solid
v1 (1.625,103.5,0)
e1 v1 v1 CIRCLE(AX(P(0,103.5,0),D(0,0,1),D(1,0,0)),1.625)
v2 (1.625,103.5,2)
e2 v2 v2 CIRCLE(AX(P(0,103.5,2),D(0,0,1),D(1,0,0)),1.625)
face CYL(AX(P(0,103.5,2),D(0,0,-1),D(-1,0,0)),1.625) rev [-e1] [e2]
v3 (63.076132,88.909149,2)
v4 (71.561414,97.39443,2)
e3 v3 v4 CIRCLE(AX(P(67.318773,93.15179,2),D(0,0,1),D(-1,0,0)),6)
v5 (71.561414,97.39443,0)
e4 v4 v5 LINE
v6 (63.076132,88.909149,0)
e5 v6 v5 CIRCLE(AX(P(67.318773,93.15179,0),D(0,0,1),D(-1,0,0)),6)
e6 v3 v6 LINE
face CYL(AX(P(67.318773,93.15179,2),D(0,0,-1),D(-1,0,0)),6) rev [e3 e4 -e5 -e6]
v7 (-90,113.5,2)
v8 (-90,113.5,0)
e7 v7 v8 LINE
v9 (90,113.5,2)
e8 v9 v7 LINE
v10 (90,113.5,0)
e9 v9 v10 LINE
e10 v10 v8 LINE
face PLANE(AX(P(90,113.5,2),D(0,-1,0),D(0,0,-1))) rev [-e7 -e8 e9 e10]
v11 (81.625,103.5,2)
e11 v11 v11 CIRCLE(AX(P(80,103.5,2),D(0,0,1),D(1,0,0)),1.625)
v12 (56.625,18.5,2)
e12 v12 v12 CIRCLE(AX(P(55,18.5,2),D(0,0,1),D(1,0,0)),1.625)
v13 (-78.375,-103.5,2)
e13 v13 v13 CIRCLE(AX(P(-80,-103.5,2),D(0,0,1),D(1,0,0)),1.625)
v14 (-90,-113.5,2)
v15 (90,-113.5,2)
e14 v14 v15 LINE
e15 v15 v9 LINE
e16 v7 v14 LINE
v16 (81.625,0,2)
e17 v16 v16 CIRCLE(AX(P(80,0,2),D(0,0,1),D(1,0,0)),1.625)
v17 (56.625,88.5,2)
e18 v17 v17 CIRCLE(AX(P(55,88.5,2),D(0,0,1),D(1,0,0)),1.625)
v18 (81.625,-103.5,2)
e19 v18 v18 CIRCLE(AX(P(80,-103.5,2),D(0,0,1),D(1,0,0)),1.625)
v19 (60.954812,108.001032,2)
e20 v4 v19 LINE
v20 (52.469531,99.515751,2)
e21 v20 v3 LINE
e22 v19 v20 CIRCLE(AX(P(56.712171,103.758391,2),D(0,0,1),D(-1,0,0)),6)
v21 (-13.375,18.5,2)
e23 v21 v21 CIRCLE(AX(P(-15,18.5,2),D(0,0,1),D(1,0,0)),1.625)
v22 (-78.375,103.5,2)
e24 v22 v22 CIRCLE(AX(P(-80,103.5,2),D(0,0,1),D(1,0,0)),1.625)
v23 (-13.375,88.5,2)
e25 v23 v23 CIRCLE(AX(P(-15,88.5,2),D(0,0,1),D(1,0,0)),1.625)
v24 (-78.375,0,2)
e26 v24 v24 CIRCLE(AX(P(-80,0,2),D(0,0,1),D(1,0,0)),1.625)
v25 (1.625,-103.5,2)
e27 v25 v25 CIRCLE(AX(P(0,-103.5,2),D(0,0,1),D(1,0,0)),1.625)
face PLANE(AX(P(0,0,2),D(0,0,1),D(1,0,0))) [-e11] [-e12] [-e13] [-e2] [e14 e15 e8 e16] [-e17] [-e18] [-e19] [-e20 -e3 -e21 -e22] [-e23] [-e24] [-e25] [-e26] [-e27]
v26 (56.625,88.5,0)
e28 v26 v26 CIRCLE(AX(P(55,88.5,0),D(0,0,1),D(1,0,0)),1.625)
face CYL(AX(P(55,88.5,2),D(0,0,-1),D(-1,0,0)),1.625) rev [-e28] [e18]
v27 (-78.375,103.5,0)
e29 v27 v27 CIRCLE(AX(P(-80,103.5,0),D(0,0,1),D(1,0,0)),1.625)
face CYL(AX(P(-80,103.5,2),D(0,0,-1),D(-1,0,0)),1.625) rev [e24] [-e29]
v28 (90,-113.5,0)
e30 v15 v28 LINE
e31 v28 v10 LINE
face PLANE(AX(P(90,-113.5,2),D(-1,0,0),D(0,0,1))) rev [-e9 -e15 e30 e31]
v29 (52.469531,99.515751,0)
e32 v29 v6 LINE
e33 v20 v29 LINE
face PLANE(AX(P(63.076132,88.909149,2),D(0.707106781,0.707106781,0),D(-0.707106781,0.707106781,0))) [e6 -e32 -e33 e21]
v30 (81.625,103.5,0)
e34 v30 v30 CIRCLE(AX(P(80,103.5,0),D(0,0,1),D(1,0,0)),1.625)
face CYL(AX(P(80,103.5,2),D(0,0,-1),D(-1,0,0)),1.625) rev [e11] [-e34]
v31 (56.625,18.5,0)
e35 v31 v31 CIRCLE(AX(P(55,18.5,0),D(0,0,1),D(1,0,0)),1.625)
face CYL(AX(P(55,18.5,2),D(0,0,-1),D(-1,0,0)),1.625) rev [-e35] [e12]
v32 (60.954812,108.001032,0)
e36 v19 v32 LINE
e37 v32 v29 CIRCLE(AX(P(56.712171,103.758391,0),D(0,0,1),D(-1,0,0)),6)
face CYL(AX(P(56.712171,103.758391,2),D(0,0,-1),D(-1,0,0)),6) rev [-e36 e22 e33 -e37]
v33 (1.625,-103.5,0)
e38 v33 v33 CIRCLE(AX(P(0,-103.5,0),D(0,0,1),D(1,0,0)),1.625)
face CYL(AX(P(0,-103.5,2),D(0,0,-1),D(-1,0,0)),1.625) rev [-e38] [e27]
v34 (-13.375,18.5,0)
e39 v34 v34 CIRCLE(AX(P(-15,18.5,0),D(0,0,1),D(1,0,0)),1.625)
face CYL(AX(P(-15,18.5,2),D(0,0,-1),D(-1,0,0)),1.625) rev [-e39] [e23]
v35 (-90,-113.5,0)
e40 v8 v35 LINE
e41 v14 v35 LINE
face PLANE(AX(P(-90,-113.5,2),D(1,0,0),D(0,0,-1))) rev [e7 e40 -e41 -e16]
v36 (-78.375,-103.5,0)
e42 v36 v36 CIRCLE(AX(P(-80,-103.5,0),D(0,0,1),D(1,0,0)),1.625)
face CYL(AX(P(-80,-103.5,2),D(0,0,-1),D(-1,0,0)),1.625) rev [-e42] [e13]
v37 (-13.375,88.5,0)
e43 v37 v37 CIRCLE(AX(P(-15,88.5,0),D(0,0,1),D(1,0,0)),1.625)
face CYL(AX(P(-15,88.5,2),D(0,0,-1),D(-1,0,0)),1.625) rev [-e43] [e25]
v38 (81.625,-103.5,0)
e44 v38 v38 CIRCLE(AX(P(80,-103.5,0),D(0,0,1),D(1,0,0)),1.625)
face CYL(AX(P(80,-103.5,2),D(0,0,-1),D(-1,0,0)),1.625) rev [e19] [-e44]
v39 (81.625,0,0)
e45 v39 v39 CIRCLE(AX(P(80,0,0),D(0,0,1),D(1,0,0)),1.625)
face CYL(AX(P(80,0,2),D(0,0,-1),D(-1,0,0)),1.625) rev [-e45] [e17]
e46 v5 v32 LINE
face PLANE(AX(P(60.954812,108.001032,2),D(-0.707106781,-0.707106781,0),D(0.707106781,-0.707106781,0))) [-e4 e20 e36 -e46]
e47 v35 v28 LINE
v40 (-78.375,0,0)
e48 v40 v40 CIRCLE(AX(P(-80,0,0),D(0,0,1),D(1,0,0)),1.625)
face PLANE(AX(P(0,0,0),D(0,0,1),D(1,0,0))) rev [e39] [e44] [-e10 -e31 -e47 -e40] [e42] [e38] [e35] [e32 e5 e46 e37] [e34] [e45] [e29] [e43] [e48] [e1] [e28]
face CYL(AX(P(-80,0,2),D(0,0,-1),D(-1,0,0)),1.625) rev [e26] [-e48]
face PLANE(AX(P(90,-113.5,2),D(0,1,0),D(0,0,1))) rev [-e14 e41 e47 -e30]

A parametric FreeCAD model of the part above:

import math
import FreeCAD as App
import Part
import Sketcher
Q = App.Units.Quantity

doc = App.newDocument("Part")
body = doc.addObject("PartDesign::Body", "Body")

# Sketch on XY plane
sketch1 = doc.addObject("Sketcher::SketchObject", "Sketch")
body.addObject(sketch1)
sketch1.AttachmentSupport = (doc.XY_Plane, [""])
sketch1.MapMode = "FlatFace"
sketch1.addGeometry(Part.LineSegment(App.Vector(-90, 113.5, 0), App.Vector(-90, -113.5, 0)), False)
sketch1.addGeometry(Part.LineSegment(App.Vector(-90, -113.5, 0), App.Vector(90, -113.5, 0)), False)
sketch1.addGeometry(Part.LineSegment(App.Vector(90, -113.5, 0), App.Vector(90, 113.5, 0)), False)
sketch1.addGeometry(Part.LineSegment(App.Vector(90, 113.5, 0), App.Vector(-90, 113.5, 0)), False)
sketch1.addGeometry(Part.Circle(App.Vector(-80, -103.5, 0), App.Vector(0, 0, 1), 1.6), False)
sketch1.addGeometry(Part.Circle(App.Vector(-80, 0, 0), App.Vector(0, 0, 1), 1.6), False)
sketch1.addGeometry(Part.Circle(App.Vector(0, -103.5, 0), App.Vector(0, 0, 1), 1.6), False)
sketch1.addGeometry(Part.Circle(App.Vector(80, -103.5, 0), App.Vector(0, 0, 1), 1.6), False)
sketch1.addGeometry(Part.Circle(App.Vector(80, 0, 0), App.Vector(0, 0, 1), 1.6), False)
sketch1.addGeometry(Part.Circle(App.Vector(-15, 18.5, 0), App.Vector(0, 0, 1), 1.6), False)
sketch1.addGeometry(Part.Circle(App.Vector(-80, 103.5, 0), App.Vector(0, 0, 1), 1.6), False)
sketch1.addGeometry(Part.Circle(App.Vector(-15, 88.5, 0), App.Vector(0, 0, 1), 1.6), False)
sketch1.addGeometry(Part.Circle(App.Vector(55, 18.5, 0), App.Vector(0, 0, 1), 1.6), False)
sketch1.addGeometry(Part.Circle(App.Vector(0, 103.5, 0), App.Vector(0, 0, 1), 1.6), False)
sketch1.addGeometry(Part.Circle(App.Vector(55, 88.5, 0), App.Vector(0, 0, 1), 1.6), False)
sketch1.addGeometry(Part.ArcOfCircle(Part.Circle(App.Vector(67.3, 93.2, 0), App.Vector(0, 0, 1), 6), math.radians(-135), math.radians(45)), False)
sketch1.addGeometry(Part.LineSegment(App.Vector(63.1, 88.9, 0), App.Vector(52.5, 99.5, 0)), False)
sketch1.addGeometry(Part.ArcOfCircle(Part.Circle(App.Vector(56.7, 103.8, 0), App.Vector(0, 0, 1), 6), math.radians(45), math.radians(225)), False)
sketch1.addGeometry(Part.LineSegment(App.Vector(61, 108, 0), App.Vector(71.6, 97.4, 0)), False)
sketch1.addGeometry(Part.Circle(App.Vector(80, 103.5, 0), App.Vector(0, 0, 1), 1.6), False)
sketch1.addConstraint(Sketcher.Constraint("Coincident", 0, 2, 1, 1))
sketch1.addConstraint(Sketcher.Constraint("Coincident", 1, 2, 2, 1))
sketch1.addConstraint(Sketcher.Constraint("Coincident", 2, 2, 3, 1))
sketch1.addConstraint(Sketcher.Constraint("Coincident", 3, 2, 0, 1))
sketch1.addConstraint(Sketcher.Constraint("Tangent", 15, 1, 16, 1))
sketch1.addConstraint(Sketcher.Constraint("Tangent", 16, 2, 17, 2))
sketch1.addConstraint(Sketcher.Constraint("Tangent", 17, 1, 18, 1))
sketch1.addConstraint(Sketcher.Constraint("Tangent", 18, 2, 15, 2))
sketch1.addConstraint(Sketcher.Constraint("Vertical", 0))
sketch1.addConstraint(Sketcher.Constraint("Horizontal", 1))
sketch1.addConstraint(Sketcher.Constraint("Vertical", 2))
sketch1.addConstraint(Sketcher.Constraint("Horizontal", 3))
sketch1.addConstraint(Sketcher.Constraint("Equal", 4, 5))
sketch1.addConstraint(Sketcher.Constraint("Equal", 5, 6))
sketch1.addConstraint(Sketcher.Constraint("Equal", 6, 7))
sketch1.addConstraint(Sketcher.Constraint("Equal", 7, 8))
sketch1.addConstraint(Sketcher.Constraint("Equal", 8, 9))
sketch1.addConstraint(Sketcher.Constraint("Equal", 9, 10))
sketch1.addConstraint(Sketcher.Constraint("Equal", 10, 11))
sketch1.addConstraint(Sketcher.Constraint("Equal", 11, 12))
sketch1.addConstraint(Sketcher.Constraint("Equal", 12, 13))
sketch1.addConstraint(Sketcher.Constraint("Equal", 13, 14))
sketch1.addConstraint(Sketcher.Constraint("Equal", 15, 17))
sketch1.addConstraint(Sketcher.Constraint("Equal", 14, 19))
sketch1.addConstraint(Sketcher.Constraint("Symmetric", 5, 3, 8, 3, -1, 1))
sketch1.addConstraint(Sketcher.Constraint("Symmetric", 7, 3, 10, 3, -1, 1))
sketch1.addConstraint(Sketcher.Constraint("Symmetric", 6, 3, 13, 3, -1, 1))
sketch1.addConstraint(Sketcher.Constraint("Symmetric", 4, 3, 19, 3, -1, 1))
sketch1.addConstraint(Sketcher.Constraint("Symmetric", 0, 2, 2, 2, -1, 1))
sketch1.addConstraint(Sketcher.Constraint("Symmetric", 4, 3, 7, 3, -2))
sketch1.addConstraint(Sketcher.Constraint("PointOnObject", 5, 3, -1))
sketch1.addConstraint(Sketcher.Constraint("PointOnObject", 6, 3, -2))
sketch1.addConstraint(Sketcher.Constraint("Horizontal", 4, 3, 6, 3))
sketch1.addConstraint(Sketcher.Constraint("Horizontal", 9, 3, 12, 3))
sketch1.addConstraint(Sketcher.Constraint("Horizontal", 11, 3, 14, 3))
sketch1.addConstraint(Sketcher.Constraint("Vertical", 4, 3, 5, 3))
sketch1.addConstraint(Sketcher.Constraint("Vertical", 9, 3, 11, 3))
sketch1.addConstraint(Sketcher.Constraint("Vertical", 12, 3, 14, 3))
sketch1.addConstraint(Sketcher.Constraint("Radius", 15, 6.0))
sketch1.addConstraint(Sketcher.Constraint("Diameter", 4, 3.25))
sketch1.addConstraint(Sketcher.Constraint("DistanceX", 1, 1, 1, 2, 180.0))
sketch1.addConstraint(Sketcher.Constraint("DistanceY", 0, 2, 0, 1, 227.0))
sketch1.addConstraint(Sketcher.Constraint("Angle", 16, Q("135 deg")))
sketch1.addConstraint(Sketcher.Constraint("Distance", 16, 15.0))
sketch1.addConstraint(Sketcher.Constraint("DistanceX", 4, 3, -1, 1, 80.0))
sketch1.addConstraint(Sketcher.Constraint("DistanceX", 9, 3, -1, 1, 15.0))
sketch1.addConstraint(Sketcher.Constraint("DistanceX", -1, 1, 12, 3, 55.0))
sketch1.addConstraint(Sketcher.Constraint("DistanceY", 6, 3, 9, 3, 122.0))
sketch1.addConstraint(Sketcher.Constraint("DistanceY", 9, 3, 10, 3, 85.0))
sketch1.addConstraint(Sketcher.Constraint("DistanceY", 11, 3, 10, 3, 15.0))
sketch1.addConstraint(Sketcher.Constraint("DistanceY", -1, 1, 15, 3, 93.15179))
sketch1.addConstraint(Sketcher.Constraint("DistanceX", -1, 1, 17, 3, 56.712171))
pad1 = doc.addObject("PartDesign::Pad", "Pad")
body.addObject(pad1)
pad1.Profile = sketch1
pad1.Length = 2

doc.recompute()
